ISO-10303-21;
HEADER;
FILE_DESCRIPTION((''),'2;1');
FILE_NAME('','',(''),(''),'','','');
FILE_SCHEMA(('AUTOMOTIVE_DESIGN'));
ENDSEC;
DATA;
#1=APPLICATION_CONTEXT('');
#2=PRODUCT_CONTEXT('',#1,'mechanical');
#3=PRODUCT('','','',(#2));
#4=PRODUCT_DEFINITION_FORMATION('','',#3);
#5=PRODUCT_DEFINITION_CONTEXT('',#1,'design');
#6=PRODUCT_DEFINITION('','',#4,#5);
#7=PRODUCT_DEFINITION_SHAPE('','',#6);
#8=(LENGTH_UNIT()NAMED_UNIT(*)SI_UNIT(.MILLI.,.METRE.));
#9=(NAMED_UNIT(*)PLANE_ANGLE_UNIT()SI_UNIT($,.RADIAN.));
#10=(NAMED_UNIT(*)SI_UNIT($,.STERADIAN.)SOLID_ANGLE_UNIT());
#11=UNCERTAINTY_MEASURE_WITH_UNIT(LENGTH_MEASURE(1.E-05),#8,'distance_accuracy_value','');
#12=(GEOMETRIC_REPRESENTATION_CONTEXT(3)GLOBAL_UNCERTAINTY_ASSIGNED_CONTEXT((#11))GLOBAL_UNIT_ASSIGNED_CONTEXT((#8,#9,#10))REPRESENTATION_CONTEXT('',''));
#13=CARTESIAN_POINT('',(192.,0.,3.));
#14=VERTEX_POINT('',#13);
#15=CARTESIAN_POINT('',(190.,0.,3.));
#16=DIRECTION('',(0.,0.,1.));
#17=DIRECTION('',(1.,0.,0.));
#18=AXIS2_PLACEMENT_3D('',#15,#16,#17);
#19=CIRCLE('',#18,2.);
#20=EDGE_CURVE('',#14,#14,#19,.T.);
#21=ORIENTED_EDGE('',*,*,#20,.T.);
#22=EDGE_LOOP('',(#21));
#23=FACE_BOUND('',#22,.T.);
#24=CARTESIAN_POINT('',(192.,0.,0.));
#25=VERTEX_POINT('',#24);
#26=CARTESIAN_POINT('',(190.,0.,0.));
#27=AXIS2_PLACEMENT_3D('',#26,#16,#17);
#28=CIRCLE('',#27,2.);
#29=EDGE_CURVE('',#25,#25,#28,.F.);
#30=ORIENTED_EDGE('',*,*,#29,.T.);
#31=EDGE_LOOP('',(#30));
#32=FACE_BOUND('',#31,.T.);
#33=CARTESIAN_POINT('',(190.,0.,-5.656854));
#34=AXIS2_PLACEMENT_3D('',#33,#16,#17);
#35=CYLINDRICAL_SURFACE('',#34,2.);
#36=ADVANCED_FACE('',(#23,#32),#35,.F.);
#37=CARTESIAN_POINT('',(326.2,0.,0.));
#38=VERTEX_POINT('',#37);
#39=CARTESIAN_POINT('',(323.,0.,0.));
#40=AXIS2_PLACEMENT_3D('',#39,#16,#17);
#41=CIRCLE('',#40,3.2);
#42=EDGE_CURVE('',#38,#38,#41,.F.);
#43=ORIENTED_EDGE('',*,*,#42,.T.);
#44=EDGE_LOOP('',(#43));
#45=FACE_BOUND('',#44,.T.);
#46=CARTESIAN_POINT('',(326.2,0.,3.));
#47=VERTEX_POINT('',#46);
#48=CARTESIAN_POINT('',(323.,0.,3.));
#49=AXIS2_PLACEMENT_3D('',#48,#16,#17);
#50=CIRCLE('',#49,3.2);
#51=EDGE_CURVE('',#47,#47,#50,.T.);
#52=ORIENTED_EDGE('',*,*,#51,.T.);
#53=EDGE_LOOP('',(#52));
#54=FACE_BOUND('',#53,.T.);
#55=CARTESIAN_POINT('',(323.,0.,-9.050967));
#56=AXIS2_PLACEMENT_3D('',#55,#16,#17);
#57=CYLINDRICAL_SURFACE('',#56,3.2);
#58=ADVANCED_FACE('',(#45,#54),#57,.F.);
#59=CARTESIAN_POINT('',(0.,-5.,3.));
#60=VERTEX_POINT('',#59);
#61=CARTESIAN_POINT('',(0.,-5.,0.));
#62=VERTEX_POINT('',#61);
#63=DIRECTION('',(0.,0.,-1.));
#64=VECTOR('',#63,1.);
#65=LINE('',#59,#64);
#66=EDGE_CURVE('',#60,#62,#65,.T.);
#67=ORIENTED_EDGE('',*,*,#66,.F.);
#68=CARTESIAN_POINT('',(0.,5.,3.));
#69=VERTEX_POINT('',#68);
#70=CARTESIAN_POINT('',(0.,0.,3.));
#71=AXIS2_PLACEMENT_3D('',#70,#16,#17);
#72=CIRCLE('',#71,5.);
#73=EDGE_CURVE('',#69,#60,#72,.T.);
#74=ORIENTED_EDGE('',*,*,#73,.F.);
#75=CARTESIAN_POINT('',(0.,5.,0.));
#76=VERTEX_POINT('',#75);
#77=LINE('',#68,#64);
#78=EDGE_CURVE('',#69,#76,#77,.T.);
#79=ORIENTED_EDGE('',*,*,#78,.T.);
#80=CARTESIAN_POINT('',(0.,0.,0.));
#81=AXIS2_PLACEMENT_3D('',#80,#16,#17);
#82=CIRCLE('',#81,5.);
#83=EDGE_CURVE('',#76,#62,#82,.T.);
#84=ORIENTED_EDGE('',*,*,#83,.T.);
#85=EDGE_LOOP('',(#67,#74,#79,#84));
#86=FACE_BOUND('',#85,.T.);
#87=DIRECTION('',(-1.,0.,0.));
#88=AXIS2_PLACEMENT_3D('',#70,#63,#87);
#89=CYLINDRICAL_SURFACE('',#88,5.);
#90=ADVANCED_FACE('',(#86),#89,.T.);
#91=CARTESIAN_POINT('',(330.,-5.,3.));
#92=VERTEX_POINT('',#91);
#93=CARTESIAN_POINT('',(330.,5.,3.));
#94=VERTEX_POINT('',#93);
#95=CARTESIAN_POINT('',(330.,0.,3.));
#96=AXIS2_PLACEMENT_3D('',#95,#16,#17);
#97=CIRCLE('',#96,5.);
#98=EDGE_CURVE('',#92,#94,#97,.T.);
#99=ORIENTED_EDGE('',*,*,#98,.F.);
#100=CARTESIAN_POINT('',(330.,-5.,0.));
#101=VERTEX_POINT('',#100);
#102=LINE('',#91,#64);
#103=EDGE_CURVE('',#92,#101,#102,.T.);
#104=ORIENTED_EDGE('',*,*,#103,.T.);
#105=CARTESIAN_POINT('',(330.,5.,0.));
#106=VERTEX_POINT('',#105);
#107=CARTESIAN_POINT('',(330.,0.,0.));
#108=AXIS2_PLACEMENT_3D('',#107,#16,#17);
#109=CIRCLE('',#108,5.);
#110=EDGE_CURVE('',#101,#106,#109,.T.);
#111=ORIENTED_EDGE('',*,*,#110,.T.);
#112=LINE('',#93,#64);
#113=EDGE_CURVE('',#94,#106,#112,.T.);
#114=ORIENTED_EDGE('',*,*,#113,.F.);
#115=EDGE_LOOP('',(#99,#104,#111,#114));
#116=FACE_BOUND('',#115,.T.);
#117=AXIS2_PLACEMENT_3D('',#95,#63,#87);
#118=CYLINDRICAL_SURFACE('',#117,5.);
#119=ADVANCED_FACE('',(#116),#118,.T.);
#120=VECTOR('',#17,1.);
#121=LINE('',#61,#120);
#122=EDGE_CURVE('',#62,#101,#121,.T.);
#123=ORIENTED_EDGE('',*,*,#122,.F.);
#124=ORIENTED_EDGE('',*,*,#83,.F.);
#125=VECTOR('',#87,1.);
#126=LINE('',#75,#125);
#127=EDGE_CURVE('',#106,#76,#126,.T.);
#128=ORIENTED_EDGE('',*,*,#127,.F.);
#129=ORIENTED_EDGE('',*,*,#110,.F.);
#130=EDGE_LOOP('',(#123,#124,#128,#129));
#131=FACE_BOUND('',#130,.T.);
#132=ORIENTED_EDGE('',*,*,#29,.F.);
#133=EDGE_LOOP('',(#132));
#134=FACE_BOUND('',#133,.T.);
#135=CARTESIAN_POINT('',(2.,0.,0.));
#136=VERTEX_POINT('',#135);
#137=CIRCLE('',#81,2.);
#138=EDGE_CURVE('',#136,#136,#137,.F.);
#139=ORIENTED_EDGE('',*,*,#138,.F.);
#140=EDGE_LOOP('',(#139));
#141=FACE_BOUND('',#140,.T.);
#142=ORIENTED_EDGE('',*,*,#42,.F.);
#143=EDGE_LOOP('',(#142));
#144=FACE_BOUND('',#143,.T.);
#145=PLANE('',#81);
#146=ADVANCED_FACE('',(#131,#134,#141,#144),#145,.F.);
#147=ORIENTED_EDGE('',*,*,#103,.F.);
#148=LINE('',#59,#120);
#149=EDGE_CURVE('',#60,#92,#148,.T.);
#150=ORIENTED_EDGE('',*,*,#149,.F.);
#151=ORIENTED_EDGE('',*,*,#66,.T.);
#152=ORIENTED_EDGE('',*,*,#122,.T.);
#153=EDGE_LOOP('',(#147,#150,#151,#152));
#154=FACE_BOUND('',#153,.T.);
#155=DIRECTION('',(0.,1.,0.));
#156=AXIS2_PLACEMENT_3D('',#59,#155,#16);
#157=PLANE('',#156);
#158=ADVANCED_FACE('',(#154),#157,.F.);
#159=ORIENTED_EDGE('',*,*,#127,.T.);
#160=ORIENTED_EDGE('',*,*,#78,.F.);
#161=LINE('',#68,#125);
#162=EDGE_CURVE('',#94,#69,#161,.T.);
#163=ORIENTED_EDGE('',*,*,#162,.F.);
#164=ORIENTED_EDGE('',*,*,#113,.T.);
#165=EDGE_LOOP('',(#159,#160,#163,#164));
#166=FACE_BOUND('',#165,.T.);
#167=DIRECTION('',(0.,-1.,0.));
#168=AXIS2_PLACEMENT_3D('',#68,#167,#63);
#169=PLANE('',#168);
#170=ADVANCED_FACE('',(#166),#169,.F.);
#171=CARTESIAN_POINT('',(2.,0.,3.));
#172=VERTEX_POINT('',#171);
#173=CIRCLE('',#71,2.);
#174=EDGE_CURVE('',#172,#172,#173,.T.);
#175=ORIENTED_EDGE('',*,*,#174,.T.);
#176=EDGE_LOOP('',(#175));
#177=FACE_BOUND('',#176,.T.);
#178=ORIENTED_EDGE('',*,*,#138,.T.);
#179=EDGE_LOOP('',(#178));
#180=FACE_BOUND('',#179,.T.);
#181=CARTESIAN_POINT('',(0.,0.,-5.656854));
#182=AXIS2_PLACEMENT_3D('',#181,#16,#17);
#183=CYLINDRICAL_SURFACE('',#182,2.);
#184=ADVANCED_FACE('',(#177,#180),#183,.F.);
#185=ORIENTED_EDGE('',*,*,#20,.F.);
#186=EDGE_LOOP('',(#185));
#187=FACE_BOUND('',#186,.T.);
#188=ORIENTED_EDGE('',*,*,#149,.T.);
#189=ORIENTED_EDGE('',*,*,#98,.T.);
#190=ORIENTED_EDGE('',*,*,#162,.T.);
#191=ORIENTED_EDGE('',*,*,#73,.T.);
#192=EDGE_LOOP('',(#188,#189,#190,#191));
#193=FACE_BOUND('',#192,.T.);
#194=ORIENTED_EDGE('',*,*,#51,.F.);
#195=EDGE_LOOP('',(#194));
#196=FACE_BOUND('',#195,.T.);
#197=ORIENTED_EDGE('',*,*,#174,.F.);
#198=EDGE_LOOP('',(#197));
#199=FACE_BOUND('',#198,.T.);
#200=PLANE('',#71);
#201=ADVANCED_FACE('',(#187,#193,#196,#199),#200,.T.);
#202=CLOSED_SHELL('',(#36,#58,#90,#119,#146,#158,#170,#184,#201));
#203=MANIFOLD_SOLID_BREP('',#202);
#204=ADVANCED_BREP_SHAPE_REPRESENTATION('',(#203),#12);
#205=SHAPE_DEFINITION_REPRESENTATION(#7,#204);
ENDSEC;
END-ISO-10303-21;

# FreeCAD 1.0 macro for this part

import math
import FreeCAD as App
import Part
import Sketcher
from FreeCAD import Vector
Q = App.Units.Quantity

doc = App.newDocument("Part")
body = doc.addObject("PartDesign::Body", "Body")

# Sketch on XY plane
sketch1 = body.newObject("Sketcher::SketchObject", "Sketch")
sketch1.AttachmentSupport = (doc.getObject("XY_Plane"), [""])
sketch1.MapMode = "FlatFace"
sketch1.addGeometry([
    Part.LineSegment(Vector(330, 5, 0), Vector(0, 5, 0)),
    Part.ArcOfCircle(Part.Circle(Vector(0, 0, 0), Vector(0, 0, 1), 5), math.radians(90), math.radians(270)),
    Part.LineSegment(Vector(0, -5, 0), Vector(330, -5, 0)),
    Part.ArcOfCircle(Part.Circle(Vector(330, 0, 0), Vector(0, 0, 1), 5), math.radians(-90), math.radians(90)),
], False)
sketch1.addConstraint([
    Sketcher.Constraint("Tangent", 0, 2, 1, 1),
    Sketcher.Constraint("Tangent", 1, 2, 2, 1),
    Sketcher.Constraint("Tangent", 2, 2, 3, 1),
    Sketcher.Constraint("Tangent", 3, 2, 0, 1),
    Sketcher.Constraint("Horizontal", 0),
    Sketcher.Constraint("Horizontal", 2),
    Sketcher.Constraint("Coincident", 1, 3, -1, 1),
    Sketcher.Constraint("Radius", 1, Q("5 mm")),
    Sketcher.Constraint("DistanceX", 0, 2, 0, 1, Q("330 mm")),
])
pad1 = body.newObject("PartDesign::Pad", "Pad")
pad1.Profile = sketch1
pad1.Length = 3

# Sketch on XY plane
sketch2 = body.newObject("Sketcher::SketchObject", "Sketch001")
sketch2.AttachmentSupport = (doc.getObject("XY_Plane"), [""])
sketch2.MapMode = "FlatFace"
sketch2.AttachmentOffset = App.Placement(Vector(0, 0, 3), App.Rotation())
sketch2.addGeometry(Part.Circle(Vector(323, 0, 0), Vector(0, 0, 1), 3.2), False)
sketch2.addConstraint([
    Sketcher.Constraint("PointOnObject", 0, 3, -1),
    Sketcher.Constraint("Diameter", 0, Q("6.4 mm")),
    Sketcher.Constraint("DistanceX", -1, 1, 0, 3, Q("323 mm")),
])
pocket1 = body.newObject("PartDesign::Pocket", "Pocket")
pocket1.Profile = sketch2
pocket1.Length = 3

# Sketch on XY plane
sketch3 = body.newObject("Sketcher::SketchObject", "Sketch002")
sketch3.AttachmentSupport = (doc.getObject("XY_Plane"), [""])
sketch3.MapMode = "FlatFace"
sketch3.AttachmentOffset = App.Placement(Vector(0, 0, 3), App.Rotation())
sketch3.addGeometry(Part.Circle(Vector(190, 0, 0), Vector(0, 0, 1), 2), False)
sketch3.addConstraint([
    Sketcher.Constraint("PointOnObject", 0, 3, -1),
    Sketcher.Constraint("Diameter", 0, Q("4 mm")),
    Sketcher.Constraint("DistanceX", -1, 1, 0, 3, Q("190 mm")),
])
pocket2 = body.newObject("PartDesign::Pocket", "Pocket001")
pocket2.Profile = sketch3
pocket2.Length = 3

# Sketch on XY plane
sketch4 = body.newObject("Sketcher::SketchObject", "Sketch003")
sketch4.AttachmentSupport = (doc.getObject("XY_Plane"), [""])
sketch4.MapMode = "FlatFace"
sketch4.AttachmentOffset = App.Placement(Vector(0, 0, 3), App.Rotation())
sketch4.addGeometry(Part.Circle(Vector(0, 0, 0), Vector(0, 0, 1), 2), False)
sketch4.addConstraint([
    Sketcher.Constraint("Coincident", 0, 3, -1, 1),
    Sketcher.Constraint("Diameter", 0, Q("4 mm")),
])
pocket3 = body.newObject("PartDesign::Pocket", "Pocket002")
pocket3.Profile = sketch4
pocket3.Length = 3

doc.recompute()
